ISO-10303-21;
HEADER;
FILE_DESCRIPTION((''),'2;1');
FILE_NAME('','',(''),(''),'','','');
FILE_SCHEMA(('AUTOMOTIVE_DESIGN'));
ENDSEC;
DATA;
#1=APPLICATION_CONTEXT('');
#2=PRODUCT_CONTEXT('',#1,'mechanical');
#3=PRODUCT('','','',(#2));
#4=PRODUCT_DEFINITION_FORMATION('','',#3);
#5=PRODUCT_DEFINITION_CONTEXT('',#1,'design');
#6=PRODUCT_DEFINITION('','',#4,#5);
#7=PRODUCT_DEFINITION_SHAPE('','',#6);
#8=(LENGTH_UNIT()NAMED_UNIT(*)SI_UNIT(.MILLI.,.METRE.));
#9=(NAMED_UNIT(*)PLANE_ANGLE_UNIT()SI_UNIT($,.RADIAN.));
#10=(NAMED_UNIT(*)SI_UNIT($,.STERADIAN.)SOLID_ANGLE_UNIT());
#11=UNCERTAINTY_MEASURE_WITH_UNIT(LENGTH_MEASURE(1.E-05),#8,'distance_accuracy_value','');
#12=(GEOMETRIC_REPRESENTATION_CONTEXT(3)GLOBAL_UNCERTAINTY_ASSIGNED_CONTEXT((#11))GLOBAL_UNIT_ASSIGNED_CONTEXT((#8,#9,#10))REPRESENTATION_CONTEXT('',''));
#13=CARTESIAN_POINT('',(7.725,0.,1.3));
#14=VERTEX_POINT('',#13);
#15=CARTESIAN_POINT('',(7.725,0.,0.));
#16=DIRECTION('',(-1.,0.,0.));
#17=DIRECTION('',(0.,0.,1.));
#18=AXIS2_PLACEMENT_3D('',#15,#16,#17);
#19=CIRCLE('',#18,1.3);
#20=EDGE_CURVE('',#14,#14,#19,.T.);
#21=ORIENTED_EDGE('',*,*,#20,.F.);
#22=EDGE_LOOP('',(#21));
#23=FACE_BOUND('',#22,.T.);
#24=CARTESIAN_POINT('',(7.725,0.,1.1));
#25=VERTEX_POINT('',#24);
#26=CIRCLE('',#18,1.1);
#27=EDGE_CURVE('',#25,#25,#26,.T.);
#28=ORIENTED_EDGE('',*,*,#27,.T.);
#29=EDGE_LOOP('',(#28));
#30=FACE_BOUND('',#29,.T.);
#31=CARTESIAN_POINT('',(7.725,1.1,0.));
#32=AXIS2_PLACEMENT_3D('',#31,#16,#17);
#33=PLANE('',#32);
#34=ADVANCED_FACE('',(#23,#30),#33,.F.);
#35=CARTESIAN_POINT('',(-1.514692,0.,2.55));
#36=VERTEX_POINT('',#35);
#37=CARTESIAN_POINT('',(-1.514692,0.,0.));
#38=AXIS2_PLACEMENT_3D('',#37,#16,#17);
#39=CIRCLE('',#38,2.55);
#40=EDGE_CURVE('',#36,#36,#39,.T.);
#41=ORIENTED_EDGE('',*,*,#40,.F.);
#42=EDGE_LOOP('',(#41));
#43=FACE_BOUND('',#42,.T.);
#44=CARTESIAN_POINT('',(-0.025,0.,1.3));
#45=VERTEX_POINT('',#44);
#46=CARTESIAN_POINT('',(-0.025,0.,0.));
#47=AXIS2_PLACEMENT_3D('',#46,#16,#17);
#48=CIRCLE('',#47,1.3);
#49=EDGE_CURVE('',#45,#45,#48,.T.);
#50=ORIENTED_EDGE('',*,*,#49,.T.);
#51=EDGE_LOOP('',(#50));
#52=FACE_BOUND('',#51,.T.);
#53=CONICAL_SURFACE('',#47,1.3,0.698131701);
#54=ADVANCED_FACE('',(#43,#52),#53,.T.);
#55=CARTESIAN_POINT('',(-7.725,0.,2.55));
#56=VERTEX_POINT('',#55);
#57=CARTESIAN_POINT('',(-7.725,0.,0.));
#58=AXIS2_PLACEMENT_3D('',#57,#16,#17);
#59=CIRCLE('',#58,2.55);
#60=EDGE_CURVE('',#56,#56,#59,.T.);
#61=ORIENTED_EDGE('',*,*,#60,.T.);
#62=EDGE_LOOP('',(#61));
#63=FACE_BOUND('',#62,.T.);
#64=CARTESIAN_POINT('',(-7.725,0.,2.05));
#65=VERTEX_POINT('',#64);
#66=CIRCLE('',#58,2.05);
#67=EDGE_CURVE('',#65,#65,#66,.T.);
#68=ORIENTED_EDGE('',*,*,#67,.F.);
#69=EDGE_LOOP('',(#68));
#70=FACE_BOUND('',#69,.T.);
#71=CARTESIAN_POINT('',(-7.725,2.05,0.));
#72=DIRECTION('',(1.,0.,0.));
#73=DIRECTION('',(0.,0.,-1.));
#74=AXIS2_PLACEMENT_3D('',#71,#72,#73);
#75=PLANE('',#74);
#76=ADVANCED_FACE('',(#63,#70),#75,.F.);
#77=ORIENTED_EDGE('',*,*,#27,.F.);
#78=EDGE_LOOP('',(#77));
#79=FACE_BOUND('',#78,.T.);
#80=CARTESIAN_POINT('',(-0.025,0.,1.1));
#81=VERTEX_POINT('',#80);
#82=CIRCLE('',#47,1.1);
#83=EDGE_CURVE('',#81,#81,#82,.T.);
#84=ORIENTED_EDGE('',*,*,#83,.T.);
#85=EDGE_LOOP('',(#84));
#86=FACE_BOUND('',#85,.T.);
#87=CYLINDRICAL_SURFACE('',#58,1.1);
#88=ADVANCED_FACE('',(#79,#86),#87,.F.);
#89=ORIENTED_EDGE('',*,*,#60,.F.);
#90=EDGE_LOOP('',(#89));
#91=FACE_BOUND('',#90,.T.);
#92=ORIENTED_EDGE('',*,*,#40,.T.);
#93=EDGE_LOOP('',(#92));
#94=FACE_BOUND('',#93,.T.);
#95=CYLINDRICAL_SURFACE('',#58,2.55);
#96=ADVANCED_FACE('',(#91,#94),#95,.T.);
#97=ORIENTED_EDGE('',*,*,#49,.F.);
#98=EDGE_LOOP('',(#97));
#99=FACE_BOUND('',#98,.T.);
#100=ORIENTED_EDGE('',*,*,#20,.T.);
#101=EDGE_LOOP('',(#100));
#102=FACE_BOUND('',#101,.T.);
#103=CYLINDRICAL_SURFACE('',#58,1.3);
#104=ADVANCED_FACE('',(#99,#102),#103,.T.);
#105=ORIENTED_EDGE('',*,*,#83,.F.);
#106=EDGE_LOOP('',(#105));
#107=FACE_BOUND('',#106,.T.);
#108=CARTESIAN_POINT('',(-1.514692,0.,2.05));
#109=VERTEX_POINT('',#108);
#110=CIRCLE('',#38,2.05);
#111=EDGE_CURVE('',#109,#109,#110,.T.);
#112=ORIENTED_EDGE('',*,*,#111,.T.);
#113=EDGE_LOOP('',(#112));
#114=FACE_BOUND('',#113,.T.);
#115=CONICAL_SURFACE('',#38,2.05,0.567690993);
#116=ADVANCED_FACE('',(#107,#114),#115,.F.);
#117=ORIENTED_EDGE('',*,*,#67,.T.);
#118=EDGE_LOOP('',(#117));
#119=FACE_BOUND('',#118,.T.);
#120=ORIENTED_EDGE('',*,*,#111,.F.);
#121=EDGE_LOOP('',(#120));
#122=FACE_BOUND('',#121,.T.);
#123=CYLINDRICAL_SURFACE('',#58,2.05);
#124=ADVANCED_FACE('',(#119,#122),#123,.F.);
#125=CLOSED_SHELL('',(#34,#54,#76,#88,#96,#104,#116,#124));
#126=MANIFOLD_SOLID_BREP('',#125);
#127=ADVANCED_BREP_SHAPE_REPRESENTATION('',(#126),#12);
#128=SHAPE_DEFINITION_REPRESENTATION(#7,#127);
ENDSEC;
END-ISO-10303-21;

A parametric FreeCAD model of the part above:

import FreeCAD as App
import Part
import Sketcher

V = App.Vector
Q = App.Units.Quantity


def add_polygon(sketch, points):
    """Adds a closed chain of lines whose ends are joined by coincident constraints."""
    first, n = sketch.GeometryCount, len(points)
    for a, b in zip(points, points[1:] + points[:1]):
        sketch.addGeometry(Part.LineSegment(App.Vector(*a, 0), App.Vector(*b, 0)), False)
    for i in range(n):
        sketch.addConstraint(Sketcher.Constraint("Coincident", first + i, 2, first + (i + 1) % n, 1))

doc = App.newDocument("Part")
body = doc.addObject("PartDesign::Body", "Body")

# Sketch on XY plane
sketch1 = body.newObject("Sketcher::SketchObject", "Sketch")
sketch1.AttachmentSupport = (doc.getObject("XY_Plane"), [""])
sketch1.MapMode = "FlatFace"
add_polygon(sketch1, [(-0.025, 1.1), (7.725, 1.1), (7.725, 1.3), (-0.025, 1.3), (-1.514692, 2.55), (-7.725, 2.55), (-7.725, 2.05), (-1.514692, 2.05)])  # lines 0-7
sketch1.addConstraint([
    Sketcher.Constraint("Horizontal", 0),
    Sketcher.Constraint("Vertical", 1),
    Sketcher.Constraint("Horizontal", 2),
    Sketcher.Constraint("Horizontal", 4),
    Sketcher.Constraint("Vertical", 5),
    Sketcher.Constraint("Horizontal", 6),
    Sketcher.Constraint("Vertical", 3, 2, 6, 2),
    Sketcher.Constraint("Vertical", 2, 2, 7, 2),
    Sketcher.Constraint("Angle", 3, Q("140 deg")),
    Sketcher.Constraint("DistanceY", 1, 1, 1, 2, Q("0.2 mm")),
    Sketcher.Constraint("DistanceY", 5, 2, 5, 1, Q("0.5 mm")),
    Sketcher.Constraint("DistanceX", 0, 1, 0, 2, Q("7.75 mm")),
    Sketcher.Constraint("DistanceY", -1, 1, 0, 2, Q("1.1 mm")),
    Sketcher.Constraint("DistanceX", 4, 2, 2, 2, Q("7.7 mm")),
    Sketcher.Constraint("DistanceY", -1, 1, 3, 2, Q("2.55 mm")),
    Sketcher.Constraint("DistanceX", -1, 1, 0, 2, Q("7.725 mm")),
])
revolution = body.newObject("PartDesign::Revolution", "Revolution")
revolution.Profile = sketch1
revolution.ReferenceAxis = (sketch1, ["H_Axis"])
revolution.Angle = 360

doc.recompute()
